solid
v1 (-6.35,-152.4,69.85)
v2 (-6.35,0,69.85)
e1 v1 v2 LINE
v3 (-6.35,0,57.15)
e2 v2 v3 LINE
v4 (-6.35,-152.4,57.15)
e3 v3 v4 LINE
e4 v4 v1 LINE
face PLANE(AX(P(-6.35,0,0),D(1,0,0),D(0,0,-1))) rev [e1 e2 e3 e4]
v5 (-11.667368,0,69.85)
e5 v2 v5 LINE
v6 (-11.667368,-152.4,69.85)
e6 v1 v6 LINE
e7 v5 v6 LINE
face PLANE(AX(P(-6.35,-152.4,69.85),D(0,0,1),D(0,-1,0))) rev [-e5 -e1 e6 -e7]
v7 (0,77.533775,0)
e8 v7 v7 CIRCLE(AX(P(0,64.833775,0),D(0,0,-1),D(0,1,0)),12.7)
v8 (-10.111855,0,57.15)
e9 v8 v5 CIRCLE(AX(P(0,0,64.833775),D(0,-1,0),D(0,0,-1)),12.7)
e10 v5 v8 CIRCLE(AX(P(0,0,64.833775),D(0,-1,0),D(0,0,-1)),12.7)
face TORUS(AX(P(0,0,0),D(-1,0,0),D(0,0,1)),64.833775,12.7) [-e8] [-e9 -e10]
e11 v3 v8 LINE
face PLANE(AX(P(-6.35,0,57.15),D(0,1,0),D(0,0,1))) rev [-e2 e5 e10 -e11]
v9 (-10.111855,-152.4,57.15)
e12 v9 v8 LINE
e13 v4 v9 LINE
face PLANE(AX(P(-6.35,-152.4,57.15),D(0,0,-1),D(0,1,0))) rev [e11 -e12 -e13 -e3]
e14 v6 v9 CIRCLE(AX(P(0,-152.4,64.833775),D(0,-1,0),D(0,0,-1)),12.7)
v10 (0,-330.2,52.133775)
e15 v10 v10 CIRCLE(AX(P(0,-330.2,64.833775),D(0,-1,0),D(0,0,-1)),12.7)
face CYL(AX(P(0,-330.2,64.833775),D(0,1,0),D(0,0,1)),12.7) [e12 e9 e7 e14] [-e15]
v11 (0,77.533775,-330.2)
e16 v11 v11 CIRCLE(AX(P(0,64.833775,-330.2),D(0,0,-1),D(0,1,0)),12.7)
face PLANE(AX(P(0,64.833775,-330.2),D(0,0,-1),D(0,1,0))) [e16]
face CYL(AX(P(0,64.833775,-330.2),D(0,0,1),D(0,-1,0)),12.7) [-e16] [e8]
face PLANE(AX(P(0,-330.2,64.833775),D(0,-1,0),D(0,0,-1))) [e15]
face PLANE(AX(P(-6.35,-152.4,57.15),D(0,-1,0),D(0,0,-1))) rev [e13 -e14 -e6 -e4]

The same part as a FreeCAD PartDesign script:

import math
import FreeCAD as App
import Part
import Sketcher
from FreeCAD import Vector
Q = App.Units.Quantity

doc = App.newDocument("Part")
body = doc.addObject("PartDesign::Body", "Body")

# Sketch on XZ plane
sketch1 = body.newObject("Sketcher::SketchObject", "Sketch")
sketch1.AttachmentSupport = (doc.getObject("XZ_Plane"), [""])
sketch1.MapMode = "FlatFace"
sketch1.addGeometry(Part.Circle(Vector(0, 65, 0), Vector(0, 0, 1), 13), False)
sketch1.addConstraint([
    Sketcher.Constraint("PointOnObject", 0, 3, -2),
    Sketcher.Constraint("Diameter", 0, Q("1 in")),
    Sketcher.Constraint("DistanceY", -1, 1, 0, 3, Q("64.833775 mm")),
])

# Sketch on YZ plane
sketch2 = body.newObject("Sketcher::SketchObject", "Sketch001")
sketch2.AttachmentSupport = (doc.getObject("YZ_Plane"), [""])
sketch2.MapMode = "FlatFace"
sketch2.addGeometry(Part.ArcOfCircle(Part.Circle(Vector(0, 0, 0), Vector(0, 0, 1), 65), math.radians(0), math.radians(90)), False)
sketch2.addConstraint([
    Sketcher.Constraint("Coincident", 0, 3, -1, 1),
    Sketcher.Constraint("PointOnObject", 0, 1, -1),
    Sketcher.Constraint("PointOnObject", 0, 2, -2),
    Sketcher.Constraint("Radius", 0, Q("64.833775 mm")),
])
doc.recompute()

additivepipe = body.newObject("PartDesign::AdditivePipe", "AdditivePipe")
additivepipe.Profile = sketch1
additivepipe.Spine = (sketch2, ["Edge1"])

# Sketch on XZ plane
sketch3 = body.newObject("Sketcher::SketchObject", "Sketch002")
sketch3.AttachmentSupport = (doc.getObject("XZ_Plane"), [""])
sketch3.MapMode = "FlatFace"
sketch3.addGeometry(Part.Circle(Vector(0, 65, 0), Vector(0, 0, 1), 13), False)
sketch3.addConstraint([
    Sketcher.Constraint("PointOnObject", 0, 3, -2),
    Sketcher.Constraint("Diameter", 0, Q("1 in")),
    Sketcher.Constraint("DistanceY", -1, 1, 0, 3, Q("64.833775 mm")),
])
pad1 = body.newObject("PartDesign::Pad", "Pad")
pad1.Profile = sketch3
pad1.Length = Q("13 in")

# Sketch on XY plane
sketch4 = body.newObject("Sketcher::SketchObject", "Sketch003")
sketch4.AttachmentSupport = (doc.getObject("XY_Plane"), [""])
sketch4.MapMode = "FlatFace"
sketch4.addGeometry(Part.Circle(Vector(0, 65, 0), Vector(0, 0, 1), 13), False)
sketch4.addConstraint([
    Sketcher.Constraint("PointOnObject", 0, 3, -2),
    Sketcher.Constraint("Diameter", 0, Q("1 in")),
    Sketcher.Constraint("DistanceY", -1, 1, 0, 3, Q("64.833775 mm")),
])
pad2 = body.newObject("PartDesign::Pad", "Pad001")
pad2.Profile = sketch4
pad2.Length = Q("13 in")
pad2.Reversed = True

# Sketch on YZ plane
sketch5 = body.newObject("Sketcher::SketchObject", "Sketch004")
sketch5.AttachmentSupport = (doc.getObject("YZ_Plane"), [""])
sketch5.MapMode = "FlatFace"
sketch5.AttachmentOffset = App.Placement(Vector(0, 0, -0.5 * 25.4), App.Rotation())
sketch5.addGeometry([
    Part.LineSegment(Vector(0, 57, 0), Vector(-152, 57, 0)),
    Part.LineSegment(Vector(-152, 57, 0), Vector(-152, 70, 0)),
    Part.LineSegment(Vector(-152, 70, 0), Vector(0, 70, 0)),
    Part.LineSegment(Vector(0, 70, 0), Vector(0, 57, 0)),
], False)
sketch5.addConstraint([
    Sketcher.Constraint("Coincident", 0, 2, 1, 1),
    Sketcher.Constraint("Coincident", 1, 2, 2, 1),
    Sketcher.Constraint("Coincident", 2, 2, 3, 1),
    Sketcher.Constraint("Coincident", 3, 2, 0, 1),
    Sketcher.Constraint("Horizontal", 0),
    Sketcher.Constraint("Vertical", 1),
    Sketcher.Constraint("Horizontal", 2),
    Sketcher.Constraint("Vertical", 3),
    Sketcher.Constraint("PointOnObject", 2, 2, -2),
    Sketcher.Constraint("DistanceX", 0, 2, 0, 1, Q("6 in")),
    Sketcher.Constraint("DistanceY", 1, 1, 1, 2, Q("0.5 in")),
    Sketcher.Constraint("DistanceY", -1, 1, 0, 2, Q("2.25 in")),
])
pocket1 = body.newObject("PartDesign::Pocket", "Pocket")
pocket1.Profile = sketch5
pocket1.Length = Q("0.25 in")
pocket1.Reversed = True

doc.recompute()
